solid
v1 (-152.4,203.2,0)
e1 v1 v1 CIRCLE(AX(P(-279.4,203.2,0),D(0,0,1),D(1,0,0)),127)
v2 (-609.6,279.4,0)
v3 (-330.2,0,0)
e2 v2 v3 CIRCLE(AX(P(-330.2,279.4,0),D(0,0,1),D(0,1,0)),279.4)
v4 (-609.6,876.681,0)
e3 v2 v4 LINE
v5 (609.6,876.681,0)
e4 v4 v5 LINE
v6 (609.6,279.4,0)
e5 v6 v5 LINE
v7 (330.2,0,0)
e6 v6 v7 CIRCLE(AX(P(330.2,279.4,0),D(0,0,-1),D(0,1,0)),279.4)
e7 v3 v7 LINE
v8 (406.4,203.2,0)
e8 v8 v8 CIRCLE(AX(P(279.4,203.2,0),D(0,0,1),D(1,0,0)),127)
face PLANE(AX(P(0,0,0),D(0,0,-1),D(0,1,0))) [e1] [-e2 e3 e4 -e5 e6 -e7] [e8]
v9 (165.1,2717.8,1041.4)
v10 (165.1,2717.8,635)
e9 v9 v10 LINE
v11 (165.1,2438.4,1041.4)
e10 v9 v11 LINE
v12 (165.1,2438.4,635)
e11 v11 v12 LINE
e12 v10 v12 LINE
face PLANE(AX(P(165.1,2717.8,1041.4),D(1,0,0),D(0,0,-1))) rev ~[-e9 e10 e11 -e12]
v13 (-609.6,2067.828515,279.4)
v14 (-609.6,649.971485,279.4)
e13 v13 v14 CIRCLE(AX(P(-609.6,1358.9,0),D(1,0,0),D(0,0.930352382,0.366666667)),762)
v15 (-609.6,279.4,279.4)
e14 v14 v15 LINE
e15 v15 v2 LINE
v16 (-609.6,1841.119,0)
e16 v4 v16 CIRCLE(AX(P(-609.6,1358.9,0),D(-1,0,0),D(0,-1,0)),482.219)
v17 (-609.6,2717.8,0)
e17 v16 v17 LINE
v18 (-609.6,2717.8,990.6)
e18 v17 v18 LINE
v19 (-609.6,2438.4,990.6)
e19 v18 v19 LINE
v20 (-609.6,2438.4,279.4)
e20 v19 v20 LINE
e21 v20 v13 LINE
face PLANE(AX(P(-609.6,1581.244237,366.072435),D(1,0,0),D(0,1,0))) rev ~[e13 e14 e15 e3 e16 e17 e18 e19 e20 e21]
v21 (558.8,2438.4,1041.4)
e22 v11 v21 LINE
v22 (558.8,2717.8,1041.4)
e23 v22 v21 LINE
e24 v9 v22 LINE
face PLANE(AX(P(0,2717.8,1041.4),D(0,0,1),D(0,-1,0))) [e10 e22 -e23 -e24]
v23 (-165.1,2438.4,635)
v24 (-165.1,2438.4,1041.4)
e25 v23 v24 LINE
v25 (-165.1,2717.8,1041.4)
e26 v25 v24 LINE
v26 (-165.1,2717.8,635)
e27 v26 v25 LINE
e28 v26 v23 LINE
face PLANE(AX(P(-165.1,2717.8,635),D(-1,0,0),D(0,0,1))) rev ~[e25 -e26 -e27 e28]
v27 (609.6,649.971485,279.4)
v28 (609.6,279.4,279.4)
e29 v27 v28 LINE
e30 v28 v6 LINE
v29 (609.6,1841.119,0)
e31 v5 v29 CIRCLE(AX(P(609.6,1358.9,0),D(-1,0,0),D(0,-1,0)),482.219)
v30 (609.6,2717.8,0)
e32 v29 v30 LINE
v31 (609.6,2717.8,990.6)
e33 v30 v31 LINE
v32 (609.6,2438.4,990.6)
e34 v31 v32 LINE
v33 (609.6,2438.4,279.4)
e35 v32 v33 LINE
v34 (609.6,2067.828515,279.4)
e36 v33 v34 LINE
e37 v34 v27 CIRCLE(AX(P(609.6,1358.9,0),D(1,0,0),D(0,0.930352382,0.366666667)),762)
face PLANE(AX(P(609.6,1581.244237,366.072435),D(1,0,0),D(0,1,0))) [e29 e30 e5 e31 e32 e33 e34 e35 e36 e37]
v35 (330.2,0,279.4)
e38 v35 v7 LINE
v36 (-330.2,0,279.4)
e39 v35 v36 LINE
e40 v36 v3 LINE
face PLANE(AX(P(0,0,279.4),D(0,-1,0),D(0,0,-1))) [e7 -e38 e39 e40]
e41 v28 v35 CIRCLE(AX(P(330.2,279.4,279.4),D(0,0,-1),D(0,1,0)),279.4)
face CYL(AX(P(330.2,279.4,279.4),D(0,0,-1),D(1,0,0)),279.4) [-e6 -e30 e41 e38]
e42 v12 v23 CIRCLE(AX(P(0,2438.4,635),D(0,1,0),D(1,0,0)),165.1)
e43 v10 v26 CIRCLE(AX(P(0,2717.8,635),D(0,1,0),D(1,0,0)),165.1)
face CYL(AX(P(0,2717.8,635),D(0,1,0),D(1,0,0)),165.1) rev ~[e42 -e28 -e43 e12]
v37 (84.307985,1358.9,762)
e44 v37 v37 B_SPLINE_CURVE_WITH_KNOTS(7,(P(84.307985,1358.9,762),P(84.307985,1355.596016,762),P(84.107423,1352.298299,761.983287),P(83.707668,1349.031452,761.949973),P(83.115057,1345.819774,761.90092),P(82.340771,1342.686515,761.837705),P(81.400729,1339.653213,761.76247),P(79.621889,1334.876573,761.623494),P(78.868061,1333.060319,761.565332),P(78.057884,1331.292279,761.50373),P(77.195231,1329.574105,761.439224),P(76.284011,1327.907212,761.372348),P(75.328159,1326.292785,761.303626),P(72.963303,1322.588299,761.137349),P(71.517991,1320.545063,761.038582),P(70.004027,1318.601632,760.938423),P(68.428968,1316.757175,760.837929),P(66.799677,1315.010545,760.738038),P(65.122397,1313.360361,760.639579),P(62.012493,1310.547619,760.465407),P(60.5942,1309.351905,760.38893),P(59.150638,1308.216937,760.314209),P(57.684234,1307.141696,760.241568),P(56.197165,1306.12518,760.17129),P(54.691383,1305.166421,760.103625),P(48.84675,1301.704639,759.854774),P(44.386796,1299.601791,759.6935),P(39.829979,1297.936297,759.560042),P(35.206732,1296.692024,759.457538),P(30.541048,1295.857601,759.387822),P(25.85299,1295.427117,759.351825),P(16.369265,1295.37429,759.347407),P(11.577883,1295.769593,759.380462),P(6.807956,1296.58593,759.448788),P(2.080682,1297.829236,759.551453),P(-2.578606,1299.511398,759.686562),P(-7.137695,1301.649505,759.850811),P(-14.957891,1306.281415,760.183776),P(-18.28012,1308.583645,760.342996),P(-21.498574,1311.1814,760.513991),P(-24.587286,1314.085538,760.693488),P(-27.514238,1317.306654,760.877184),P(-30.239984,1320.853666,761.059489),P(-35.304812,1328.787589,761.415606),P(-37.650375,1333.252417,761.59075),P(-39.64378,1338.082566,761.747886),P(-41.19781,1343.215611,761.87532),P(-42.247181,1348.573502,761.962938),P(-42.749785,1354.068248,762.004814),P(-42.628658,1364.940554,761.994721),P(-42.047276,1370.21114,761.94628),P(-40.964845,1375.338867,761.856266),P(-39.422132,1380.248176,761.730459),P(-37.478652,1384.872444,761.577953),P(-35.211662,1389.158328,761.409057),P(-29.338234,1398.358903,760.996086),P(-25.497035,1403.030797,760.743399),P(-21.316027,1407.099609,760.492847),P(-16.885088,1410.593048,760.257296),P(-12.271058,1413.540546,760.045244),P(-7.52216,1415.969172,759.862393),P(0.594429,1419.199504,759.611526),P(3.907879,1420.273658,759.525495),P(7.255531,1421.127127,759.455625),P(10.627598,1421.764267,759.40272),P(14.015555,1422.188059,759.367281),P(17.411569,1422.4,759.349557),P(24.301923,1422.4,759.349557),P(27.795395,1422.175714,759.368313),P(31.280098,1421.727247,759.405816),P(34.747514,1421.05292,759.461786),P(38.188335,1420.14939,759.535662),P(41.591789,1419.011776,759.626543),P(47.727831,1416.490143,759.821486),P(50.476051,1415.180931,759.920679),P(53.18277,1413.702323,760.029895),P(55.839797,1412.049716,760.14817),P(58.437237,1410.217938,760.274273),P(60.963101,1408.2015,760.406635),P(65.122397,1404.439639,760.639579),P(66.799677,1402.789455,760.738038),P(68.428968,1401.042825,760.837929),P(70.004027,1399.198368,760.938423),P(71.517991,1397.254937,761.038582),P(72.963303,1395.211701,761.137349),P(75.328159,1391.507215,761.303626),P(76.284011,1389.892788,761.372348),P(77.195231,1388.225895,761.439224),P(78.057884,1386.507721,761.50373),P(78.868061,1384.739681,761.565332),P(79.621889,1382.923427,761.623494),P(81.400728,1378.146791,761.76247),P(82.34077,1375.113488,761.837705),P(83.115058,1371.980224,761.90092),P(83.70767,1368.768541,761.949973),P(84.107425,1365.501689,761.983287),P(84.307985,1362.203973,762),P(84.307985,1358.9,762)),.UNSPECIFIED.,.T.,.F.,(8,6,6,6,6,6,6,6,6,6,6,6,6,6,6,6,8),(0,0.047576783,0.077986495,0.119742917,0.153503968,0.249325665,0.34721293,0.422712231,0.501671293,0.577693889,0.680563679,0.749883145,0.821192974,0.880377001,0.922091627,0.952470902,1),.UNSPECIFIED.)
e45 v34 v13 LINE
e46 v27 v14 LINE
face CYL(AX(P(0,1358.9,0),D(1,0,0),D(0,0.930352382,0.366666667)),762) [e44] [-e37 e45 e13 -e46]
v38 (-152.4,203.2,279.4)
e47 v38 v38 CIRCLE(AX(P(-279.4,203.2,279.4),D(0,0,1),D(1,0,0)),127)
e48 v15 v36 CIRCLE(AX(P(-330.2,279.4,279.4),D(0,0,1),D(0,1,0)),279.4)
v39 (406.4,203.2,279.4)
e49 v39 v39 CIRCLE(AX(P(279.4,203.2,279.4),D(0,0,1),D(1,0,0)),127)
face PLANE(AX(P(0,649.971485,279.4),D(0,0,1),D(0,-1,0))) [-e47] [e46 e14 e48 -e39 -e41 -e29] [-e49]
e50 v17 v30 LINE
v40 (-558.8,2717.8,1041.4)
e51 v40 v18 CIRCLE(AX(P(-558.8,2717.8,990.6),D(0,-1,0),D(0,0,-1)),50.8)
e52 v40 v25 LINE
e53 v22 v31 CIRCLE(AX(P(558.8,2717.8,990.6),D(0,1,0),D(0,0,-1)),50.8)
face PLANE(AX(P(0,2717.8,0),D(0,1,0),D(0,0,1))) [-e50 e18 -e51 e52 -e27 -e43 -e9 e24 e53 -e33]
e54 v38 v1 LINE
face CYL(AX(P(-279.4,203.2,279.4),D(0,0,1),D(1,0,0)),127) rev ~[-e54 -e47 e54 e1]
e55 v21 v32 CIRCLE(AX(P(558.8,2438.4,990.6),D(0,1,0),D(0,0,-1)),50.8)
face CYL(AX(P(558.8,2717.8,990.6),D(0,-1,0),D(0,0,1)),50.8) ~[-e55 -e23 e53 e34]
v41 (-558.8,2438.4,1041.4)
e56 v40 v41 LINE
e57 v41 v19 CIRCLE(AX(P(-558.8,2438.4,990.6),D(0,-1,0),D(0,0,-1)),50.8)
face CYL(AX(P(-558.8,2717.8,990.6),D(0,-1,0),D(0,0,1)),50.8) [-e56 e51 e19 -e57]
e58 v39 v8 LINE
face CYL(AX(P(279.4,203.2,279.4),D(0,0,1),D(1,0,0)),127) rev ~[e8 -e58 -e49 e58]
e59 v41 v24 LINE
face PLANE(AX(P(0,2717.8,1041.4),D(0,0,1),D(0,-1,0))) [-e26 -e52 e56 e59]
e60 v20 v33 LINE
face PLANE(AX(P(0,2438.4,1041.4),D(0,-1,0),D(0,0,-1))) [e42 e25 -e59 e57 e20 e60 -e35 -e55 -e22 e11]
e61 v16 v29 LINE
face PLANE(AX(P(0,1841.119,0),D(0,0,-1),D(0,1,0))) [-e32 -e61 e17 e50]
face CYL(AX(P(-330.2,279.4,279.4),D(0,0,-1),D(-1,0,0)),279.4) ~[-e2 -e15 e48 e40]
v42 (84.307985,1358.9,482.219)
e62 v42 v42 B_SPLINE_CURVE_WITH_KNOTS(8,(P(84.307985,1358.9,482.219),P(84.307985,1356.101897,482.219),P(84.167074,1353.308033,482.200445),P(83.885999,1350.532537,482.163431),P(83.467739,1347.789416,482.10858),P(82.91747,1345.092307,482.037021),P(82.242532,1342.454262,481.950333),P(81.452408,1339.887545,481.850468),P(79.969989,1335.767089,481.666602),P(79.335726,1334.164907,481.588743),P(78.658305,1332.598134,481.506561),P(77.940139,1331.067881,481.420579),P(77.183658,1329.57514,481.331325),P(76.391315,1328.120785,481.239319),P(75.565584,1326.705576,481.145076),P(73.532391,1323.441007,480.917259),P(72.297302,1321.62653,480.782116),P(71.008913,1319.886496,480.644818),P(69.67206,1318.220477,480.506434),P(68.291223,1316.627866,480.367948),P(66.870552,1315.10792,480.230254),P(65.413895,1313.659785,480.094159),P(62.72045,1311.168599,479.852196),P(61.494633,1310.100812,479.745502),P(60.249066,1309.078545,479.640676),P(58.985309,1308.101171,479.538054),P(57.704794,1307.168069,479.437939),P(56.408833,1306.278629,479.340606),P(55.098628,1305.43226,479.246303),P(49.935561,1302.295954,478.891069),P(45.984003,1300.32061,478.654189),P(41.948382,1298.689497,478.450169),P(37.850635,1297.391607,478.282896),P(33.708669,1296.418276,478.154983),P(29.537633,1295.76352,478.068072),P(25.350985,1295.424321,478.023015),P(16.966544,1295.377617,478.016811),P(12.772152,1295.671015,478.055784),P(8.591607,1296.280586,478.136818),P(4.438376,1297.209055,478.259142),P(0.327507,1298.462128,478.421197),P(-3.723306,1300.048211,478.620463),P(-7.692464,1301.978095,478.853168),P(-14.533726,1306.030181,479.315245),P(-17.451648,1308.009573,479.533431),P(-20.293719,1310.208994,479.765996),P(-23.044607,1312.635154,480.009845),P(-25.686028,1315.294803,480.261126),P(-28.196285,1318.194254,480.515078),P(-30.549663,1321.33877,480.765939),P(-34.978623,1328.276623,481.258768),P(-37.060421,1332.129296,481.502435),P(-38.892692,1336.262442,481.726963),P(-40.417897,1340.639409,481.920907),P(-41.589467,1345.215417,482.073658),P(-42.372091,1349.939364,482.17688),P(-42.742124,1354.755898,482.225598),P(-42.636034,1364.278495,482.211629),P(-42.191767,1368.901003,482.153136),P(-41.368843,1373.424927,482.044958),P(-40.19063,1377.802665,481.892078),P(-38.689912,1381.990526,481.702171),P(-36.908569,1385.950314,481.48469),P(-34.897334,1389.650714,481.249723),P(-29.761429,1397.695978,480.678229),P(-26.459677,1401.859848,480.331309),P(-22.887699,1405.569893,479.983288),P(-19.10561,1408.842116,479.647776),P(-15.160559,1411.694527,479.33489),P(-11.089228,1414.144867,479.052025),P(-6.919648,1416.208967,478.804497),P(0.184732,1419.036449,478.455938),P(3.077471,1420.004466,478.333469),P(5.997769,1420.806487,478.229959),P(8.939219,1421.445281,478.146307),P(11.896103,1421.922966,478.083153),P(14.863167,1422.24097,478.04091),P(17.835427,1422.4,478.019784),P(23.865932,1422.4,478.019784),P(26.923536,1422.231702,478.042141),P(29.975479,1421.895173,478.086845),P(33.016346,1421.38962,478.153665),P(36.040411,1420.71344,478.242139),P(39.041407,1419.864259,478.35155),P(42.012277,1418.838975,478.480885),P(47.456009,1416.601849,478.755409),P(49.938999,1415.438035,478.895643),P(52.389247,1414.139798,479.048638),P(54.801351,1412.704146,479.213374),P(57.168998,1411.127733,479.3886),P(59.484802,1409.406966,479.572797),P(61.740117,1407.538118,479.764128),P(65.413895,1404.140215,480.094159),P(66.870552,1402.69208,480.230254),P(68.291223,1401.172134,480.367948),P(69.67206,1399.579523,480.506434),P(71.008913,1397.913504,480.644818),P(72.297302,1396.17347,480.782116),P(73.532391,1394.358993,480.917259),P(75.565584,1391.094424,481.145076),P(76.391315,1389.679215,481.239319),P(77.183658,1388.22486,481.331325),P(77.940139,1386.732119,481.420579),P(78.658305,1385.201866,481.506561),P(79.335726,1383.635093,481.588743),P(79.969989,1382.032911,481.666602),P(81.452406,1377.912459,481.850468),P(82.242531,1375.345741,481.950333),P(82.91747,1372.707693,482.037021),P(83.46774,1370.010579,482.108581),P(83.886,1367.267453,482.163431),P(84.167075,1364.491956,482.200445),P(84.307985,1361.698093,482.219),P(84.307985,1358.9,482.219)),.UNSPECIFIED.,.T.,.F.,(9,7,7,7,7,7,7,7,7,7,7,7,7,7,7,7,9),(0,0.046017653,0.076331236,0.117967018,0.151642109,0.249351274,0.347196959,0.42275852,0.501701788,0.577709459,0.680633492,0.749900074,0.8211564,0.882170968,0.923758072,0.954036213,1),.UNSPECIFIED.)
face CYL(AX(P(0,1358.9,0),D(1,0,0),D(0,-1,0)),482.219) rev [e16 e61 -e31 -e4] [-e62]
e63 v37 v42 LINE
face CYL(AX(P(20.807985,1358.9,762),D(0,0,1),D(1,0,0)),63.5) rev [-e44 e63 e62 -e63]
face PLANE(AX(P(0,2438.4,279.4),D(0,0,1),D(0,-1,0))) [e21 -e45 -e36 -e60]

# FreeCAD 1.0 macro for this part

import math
import FreeCAD as App
import Part
import Sketcher
Q = App.Units.Quantity


def edges_at(feature, points):
    """Names of the edges that pass closest to the given points."""
    edges = feature.Shape.Edges
    near = lambda p: min(range(len(edges)), key=lambda i: edges[i].distToShape(Part.Vertex(*p))[0])
    return sorted({f"Edge{near(p) + 1}" for p in points})

doc = App.newDocument("Part")
body = doc.addObject("PartDesign::Body", "Body")

# Sketch on YZ plane
sketch1 = doc.addObject("Sketcher::SketchObject", "Sketch")
body.addObject(sketch1)
sketch1.AttachmentSupport = (doc.YZ_Plane, [""])
sketch1.MapMode = "FlatFace"
sketch1.addGeometry(Part.LineSegment(App.Vector(0, 279.4, 0), App.Vector(0, 0, 0)), False)
sketch1.addGeometry(Part.LineSegment(App.Vector(0, 0, 0), App.Vector(876.681, 0, 0)), False)
sketch1.addGeometry(Part.ArcOfCircle(Part.Circle(App.Vector(1358.9, 0, 0), App.Vector(0, 0, 1), 482.219), math.radians(0), math.radians(180)), False)
sketch1.addGeometry(Part.LineSegment(App.Vector(1841.119, 0, 0), App.Vector(2717.8, 0, 0)), False)
sketch1.addGeometry(Part.LineSegment(App.Vector(2717.8, 0, 0), App.Vector(2717.8, 1041.4, 0)), False)
sketch1.addGeometry(Part.LineSegment(App.Vector(2717.8, 1041.4, 0), App.Vector(2438.4, 1041.4, 0)), False)
sketch1.addGeometry(Part.LineSegment(App.Vector(2438.4, 1041.4, 0), App.Vector(2438.4, 279.4, 0)), False)
sketch1.addGeometry(Part.LineSegment(App.Vector(2438.4, 279.4, 0), App.Vector(2067.828515, 279.4, 0)), False)
sketch1.addGeometry(Part.ArcOfCircle(Part.Circle(App.Vector(1358.9, 0, 0), App.Vector(0, 0, 1), 762), math.radians(21.510188), math.radians(158.489812)), False)
sketch1.addGeometry(Part.LineSegment(App.Vector(649.971485, 279.4, 0), App.Vector(0, 279.4, 0)), False)
sketch1.addConstraint(Sketcher.Constraint("Coincident", 0, 2, 1, 1))
sketch1.addConstraint(Sketcher.Constraint("Coincident", 1, 2, 2, 2))
sketch1.addConstraint(Sketcher.Constraint("Coincident", 2, 1, 3, 1))
sketch1.addConstraint(Sketcher.Constraint("Coincident", 3, 2, 4, 1))
sketch1.addConstraint(Sketcher.Constraint("Coincident", 4, 2, 5, 1))
sketch1.addConstraint(Sketcher.Constraint("Coincident", 5, 2, 6, 1))
sketch1.addConstraint(Sketcher.Constraint("Coincident", 6, 2, 7, 1))
sketch1.addConstraint(Sketcher.Constraint("Coincident", 7, 2, 8, 1))
sketch1.addConstraint(Sketcher.Constraint("Coincident", 8, 2, 9, 1))
sketch1.addConstraint(Sketcher.Constraint("Coincident", 9, 2, 0, 1))
sketch1.addConstraint(Sketcher.Constraint("Vertical", 0))
sketch1.addConstraint(Sketcher.Constraint("Horizontal", 1))
sketch1.addConstraint(Sketcher.Constraint("Horizontal", 3))
sketch1.addConstraint(Sketcher.Constraint("Vertical", 4))
sketch1.addConstraint(Sketcher.Constraint("Horizontal", 5))
sketch1.addConstraint(Sketcher.Constraint("Vertical", 6))
sketch1.addConstraint(Sketcher.Constraint("Horizontal", 7))
sketch1.addConstraint(Sketcher.Constraint("Horizontal", 9))
sketch1.addConstraint(Sketcher.Constraint("Coincident", 0, 2, -1, 1))
sketch1.addConstraint(Sketcher.Constraint("Coincident", 8, 3, 2, 3))
sketch1.addConstraint(Sketcher.Constraint("PointOnObject", 2, 3, -1))
sketch1.addConstraint(Sketcher.Constraint("PointOnObject", 3, 2, -1))
sketch1.addConstraint(Sketcher.Constraint("Equal", 1, 3))
sketch1.addConstraint(Sketcher.Constraint("Equal", 5, 0))
sketch1.addConstraint(Sketcher.Constraint("Radius", 8, Q("30 in")))
sketch1.addConstraint(Sketcher.Constraint("DistanceX", 5, 2, 5, 1, Q("11 in")))
sketch1.addConstraint(Sketcher.Constraint("DistanceY", 4, 1, 4, 2, Q("41 in")))
sketch1.addConstraint(Sketcher.Constraint("DistanceY", 6, 2, 6, 1, Q("30 in")))
sketch1.addConstraint(Sketcher.Constraint("DistanceX", -1, 1, 3, 2, Q("107 in")))
sketch1.addConstraint(Sketcher.Constraint("Radius", 2, Q("18.985 in")))
pad1 = doc.addObject("PartDesign::Pad", "Pad")
body.addObject(pad1)
pad1.Profile = sketch1
pad1.Length = Q("48 in")
pad1.Midplane = True
doc.recompute()

fillet = doc.addObject("PartDesign::Fillet", "Fillet")
body.addObject(fillet)
fillet.Base = (pad1, edges_at(pad1, [(609.6, 2578.1, 1041.4), (-609.6, 2578.1, 1041.4)]))
fillet.Radius = Q("2 in")

# Sketch on XZ plane
sketch2 = doc.addObject("Sketcher::SketchObject", "Sketch001")
body.addObject(sketch2)
sketch2.AttachmentSupport = (doc.XZ_Plane, [""])
sketch2.MapMode = "FlatFace"
sketch2.AttachmentOffset = App.Placement(App.Vector(0, 0, -107 * 25.4), App.Rotation())
sketch2.addGeometry(Part.LineSegment(App.Vector(-165.1, 1041.4, 0), App.Vector(165.1, 1041.4, 0)), False)
sketch2.addGeometry(Part.LineSegment(App.Vector(165.1, 1041.4, 0), App.Vector(165.1, 635, 0)), False)
sketch2.addGeometry(Part.ArcOfCircle(Part.Circle(App.Vector(0, 635, 0), App.Vector(0, 0, 1), 165.1), math.radians(180), math.radians(360)), False)
sketch2.addGeometry(Part.LineSegment(App.Vector(-165.1, 635, 0), App.Vector(-165.1, 1041.4, 0)), False)
sketch2.addConstraint(Sketcher.Constraint("Coincident", 0, 2, 1, 1))
sketch2.addConstraint(Sketcher.Constraint("Tangent", 1, 2, 2, 2))
sketch2.addConstraint(Sketcher.Constraint("Tangent", 2, 1, 3, 1))
sketch2.addConstraint(Sketcher.Constraint("Coincident", 3, 2, 0, 1))
sketch2.addConstraint(Sketcher.Constraint("Horizontal", 0))
sketch2.addConstraint(Sketcher.Constraint("Vertical", 1))
sketch2.addConstraint(Sketcher.Constraint("Vertical", 3))
sketch2.addConstraint(Sketcher.Constraint("PointOnObject", 2, 3, -2))
sketch2.addConstraint(Sketcher.Constraint("Radius", 2, Q("6.5 in")))
sketch2.addConstraint(Sketcher.Constraint("DistanceY", 1, 2, 1, 1, Q("16 in")))
sketch2.addConstraint(Sketcher.Constraint("DistanceY", -1, 1, 2, 3, Q("25 in")))
pocket1 = doc.addObject("PartDesign::Pocket", "Pocket")
body.addObject(pocket1)
pocket1.Profile = sketch2
pocket1.Length = Q("11 in")
pocket1.Reversed = True

# Sketch on XY plane
sketch3 = doc.addObject("Sketcher::SketchObject", "Sketch002")
body.addObject(sketch3)
sketch3.AttachmentSupport = (doc.XY_Plane, [""])
sketch3.MapMode = "FlatFace"
sketch3.AttachmentOffset = App.Placement(App.Vector(0, 0, 11 * 25.4), App.Rotation())
sketch3.addGeometry(Part.Circle(App.Vector(-279.4, 203.2, 0), App.Vector(0, 0, 1), 127), False)
sketch3.addGeometry(Part.Circle(App.Vector(279.4, 203.2, 0), App.Vector(0, 0, 1), 127), False)
sketch3.addConstraint(Sketcher.Constraint("Equal", 0, 1))
sketch3.addConstraint(Sketcher.Constraint("Symmetric", 0, 3, 1, 3, -2))
sketch3.addConstraint(Sketcher.Constraint("Diameter", 0, Q("10 in")))
sketch3.addConstraint(Sketcher.Constraint("DistanceX", 0, 3, -1, 1, Q("11 in")))
sketch3.addConstraint(Sketcher.Constraint("DistanceY", -1, 1, 0, 3, Q("8 in")))
pocket2 = doc.addObject("PartDesign::Pocket", "Pocket001")
body.addObject(pocket2)
pocket2.Profile = sketch3
pocket2.Type = "ThroughAll"

# Sketch on XY plane
sketch4 = doc.addObject("Sketcher::SketchObject", "Sketch003")
body.addObject(sketch4)
sketch4.AttachmentSupport = (doc.XY_Plane, [""])
sketch4.MapMode = "FlatFace"
sketch4.AttachmentOffset = App.Placement(App.Vector(0, 0, 11 * 25.4), App.Rotation())
sketch4.addGeometry(Part.Circle(App.Vector(-279.4, 203.2, 0), App.Vector(0, 0, 1), 127), False)
sketch4.addGeometry(Part.Circle(App.Vector(279.4, 203.2, 0), App.Vector(0, 0, 1), 127), False)
sketch4.addConstraint(Sketcher.Constraint("Equal", 0, 1))
sketch4.addConstraint(Sketcher.Constraint("Symmetric", 0, 3, 1, 3, -2))
sketch4.addConstraint(Sketcher.Constraint("Diameter", 0, Q("10 in")))
sketch4.addConstraint(Sketcher.Constraint("DistanceX", 0, 3, -1, 1, Q("11 in")))
sketch4.addConstraint(Sketcher.Constraint("DistanceY", -1, 1, 0, 3, Q("8 in")))
pocket3 = doc.addObject("PartDesign::Pocket", "Pocket002")
body.addObject(pocket3)
pocket3.Profile = sketch4
pocket3.Length = Q("1 in")
pocket3.Reversed = True
doc.recompute()

fillet2 = doc.addObject("PartDesign::Fillet", "Fillet001")
body.addObject(fillet2)
fillet2.Base = (pocket3, edges_at(pocket3, [(609.6, 0, 139.7), (-609.6, 0, 139.7)]))
fillet2.Radius = Q("11 in")

# Sketch on XY plane
sketch5 = doc.addObject("Sketcher::SketchObject", "Sketch004")
body.addObject(sketch5)
sketch5.AttachmentSupport = (doc.XY_Plane, [""])
sketch5.MapMode = "FlatFace"
sketch5.AttachmentOffset = App.Placement(App.Vector(0, 0, 30 * 25.4), App.Rotation())
sketch5.addGeometry(Part.Circle(App.Vector(20.807985, 1358.9, 0), App.Vector(0, 0, 1), 63.5), False)
sketch5.addConstraint(Sketcher.Constraint("Diameter", 0, Q("5 in")))
sketch5.addConstraint(Sketcher.Constraint("DistanceY", -1, 1, 0, 3, Q("53.5 in")))
sketch5.addConstraint(Sketcher.Constraint("DistanceX", -1, 1, 0, 3, Q("20.807985 mm")))
pocket4 = doc.addObject("PartDesign::Pocket", "Pocket003")
body.addObject(pocket4)
pocket4.Profile = sketch5
pocket4.Type = "ThroughAll"

doc.recompute()
